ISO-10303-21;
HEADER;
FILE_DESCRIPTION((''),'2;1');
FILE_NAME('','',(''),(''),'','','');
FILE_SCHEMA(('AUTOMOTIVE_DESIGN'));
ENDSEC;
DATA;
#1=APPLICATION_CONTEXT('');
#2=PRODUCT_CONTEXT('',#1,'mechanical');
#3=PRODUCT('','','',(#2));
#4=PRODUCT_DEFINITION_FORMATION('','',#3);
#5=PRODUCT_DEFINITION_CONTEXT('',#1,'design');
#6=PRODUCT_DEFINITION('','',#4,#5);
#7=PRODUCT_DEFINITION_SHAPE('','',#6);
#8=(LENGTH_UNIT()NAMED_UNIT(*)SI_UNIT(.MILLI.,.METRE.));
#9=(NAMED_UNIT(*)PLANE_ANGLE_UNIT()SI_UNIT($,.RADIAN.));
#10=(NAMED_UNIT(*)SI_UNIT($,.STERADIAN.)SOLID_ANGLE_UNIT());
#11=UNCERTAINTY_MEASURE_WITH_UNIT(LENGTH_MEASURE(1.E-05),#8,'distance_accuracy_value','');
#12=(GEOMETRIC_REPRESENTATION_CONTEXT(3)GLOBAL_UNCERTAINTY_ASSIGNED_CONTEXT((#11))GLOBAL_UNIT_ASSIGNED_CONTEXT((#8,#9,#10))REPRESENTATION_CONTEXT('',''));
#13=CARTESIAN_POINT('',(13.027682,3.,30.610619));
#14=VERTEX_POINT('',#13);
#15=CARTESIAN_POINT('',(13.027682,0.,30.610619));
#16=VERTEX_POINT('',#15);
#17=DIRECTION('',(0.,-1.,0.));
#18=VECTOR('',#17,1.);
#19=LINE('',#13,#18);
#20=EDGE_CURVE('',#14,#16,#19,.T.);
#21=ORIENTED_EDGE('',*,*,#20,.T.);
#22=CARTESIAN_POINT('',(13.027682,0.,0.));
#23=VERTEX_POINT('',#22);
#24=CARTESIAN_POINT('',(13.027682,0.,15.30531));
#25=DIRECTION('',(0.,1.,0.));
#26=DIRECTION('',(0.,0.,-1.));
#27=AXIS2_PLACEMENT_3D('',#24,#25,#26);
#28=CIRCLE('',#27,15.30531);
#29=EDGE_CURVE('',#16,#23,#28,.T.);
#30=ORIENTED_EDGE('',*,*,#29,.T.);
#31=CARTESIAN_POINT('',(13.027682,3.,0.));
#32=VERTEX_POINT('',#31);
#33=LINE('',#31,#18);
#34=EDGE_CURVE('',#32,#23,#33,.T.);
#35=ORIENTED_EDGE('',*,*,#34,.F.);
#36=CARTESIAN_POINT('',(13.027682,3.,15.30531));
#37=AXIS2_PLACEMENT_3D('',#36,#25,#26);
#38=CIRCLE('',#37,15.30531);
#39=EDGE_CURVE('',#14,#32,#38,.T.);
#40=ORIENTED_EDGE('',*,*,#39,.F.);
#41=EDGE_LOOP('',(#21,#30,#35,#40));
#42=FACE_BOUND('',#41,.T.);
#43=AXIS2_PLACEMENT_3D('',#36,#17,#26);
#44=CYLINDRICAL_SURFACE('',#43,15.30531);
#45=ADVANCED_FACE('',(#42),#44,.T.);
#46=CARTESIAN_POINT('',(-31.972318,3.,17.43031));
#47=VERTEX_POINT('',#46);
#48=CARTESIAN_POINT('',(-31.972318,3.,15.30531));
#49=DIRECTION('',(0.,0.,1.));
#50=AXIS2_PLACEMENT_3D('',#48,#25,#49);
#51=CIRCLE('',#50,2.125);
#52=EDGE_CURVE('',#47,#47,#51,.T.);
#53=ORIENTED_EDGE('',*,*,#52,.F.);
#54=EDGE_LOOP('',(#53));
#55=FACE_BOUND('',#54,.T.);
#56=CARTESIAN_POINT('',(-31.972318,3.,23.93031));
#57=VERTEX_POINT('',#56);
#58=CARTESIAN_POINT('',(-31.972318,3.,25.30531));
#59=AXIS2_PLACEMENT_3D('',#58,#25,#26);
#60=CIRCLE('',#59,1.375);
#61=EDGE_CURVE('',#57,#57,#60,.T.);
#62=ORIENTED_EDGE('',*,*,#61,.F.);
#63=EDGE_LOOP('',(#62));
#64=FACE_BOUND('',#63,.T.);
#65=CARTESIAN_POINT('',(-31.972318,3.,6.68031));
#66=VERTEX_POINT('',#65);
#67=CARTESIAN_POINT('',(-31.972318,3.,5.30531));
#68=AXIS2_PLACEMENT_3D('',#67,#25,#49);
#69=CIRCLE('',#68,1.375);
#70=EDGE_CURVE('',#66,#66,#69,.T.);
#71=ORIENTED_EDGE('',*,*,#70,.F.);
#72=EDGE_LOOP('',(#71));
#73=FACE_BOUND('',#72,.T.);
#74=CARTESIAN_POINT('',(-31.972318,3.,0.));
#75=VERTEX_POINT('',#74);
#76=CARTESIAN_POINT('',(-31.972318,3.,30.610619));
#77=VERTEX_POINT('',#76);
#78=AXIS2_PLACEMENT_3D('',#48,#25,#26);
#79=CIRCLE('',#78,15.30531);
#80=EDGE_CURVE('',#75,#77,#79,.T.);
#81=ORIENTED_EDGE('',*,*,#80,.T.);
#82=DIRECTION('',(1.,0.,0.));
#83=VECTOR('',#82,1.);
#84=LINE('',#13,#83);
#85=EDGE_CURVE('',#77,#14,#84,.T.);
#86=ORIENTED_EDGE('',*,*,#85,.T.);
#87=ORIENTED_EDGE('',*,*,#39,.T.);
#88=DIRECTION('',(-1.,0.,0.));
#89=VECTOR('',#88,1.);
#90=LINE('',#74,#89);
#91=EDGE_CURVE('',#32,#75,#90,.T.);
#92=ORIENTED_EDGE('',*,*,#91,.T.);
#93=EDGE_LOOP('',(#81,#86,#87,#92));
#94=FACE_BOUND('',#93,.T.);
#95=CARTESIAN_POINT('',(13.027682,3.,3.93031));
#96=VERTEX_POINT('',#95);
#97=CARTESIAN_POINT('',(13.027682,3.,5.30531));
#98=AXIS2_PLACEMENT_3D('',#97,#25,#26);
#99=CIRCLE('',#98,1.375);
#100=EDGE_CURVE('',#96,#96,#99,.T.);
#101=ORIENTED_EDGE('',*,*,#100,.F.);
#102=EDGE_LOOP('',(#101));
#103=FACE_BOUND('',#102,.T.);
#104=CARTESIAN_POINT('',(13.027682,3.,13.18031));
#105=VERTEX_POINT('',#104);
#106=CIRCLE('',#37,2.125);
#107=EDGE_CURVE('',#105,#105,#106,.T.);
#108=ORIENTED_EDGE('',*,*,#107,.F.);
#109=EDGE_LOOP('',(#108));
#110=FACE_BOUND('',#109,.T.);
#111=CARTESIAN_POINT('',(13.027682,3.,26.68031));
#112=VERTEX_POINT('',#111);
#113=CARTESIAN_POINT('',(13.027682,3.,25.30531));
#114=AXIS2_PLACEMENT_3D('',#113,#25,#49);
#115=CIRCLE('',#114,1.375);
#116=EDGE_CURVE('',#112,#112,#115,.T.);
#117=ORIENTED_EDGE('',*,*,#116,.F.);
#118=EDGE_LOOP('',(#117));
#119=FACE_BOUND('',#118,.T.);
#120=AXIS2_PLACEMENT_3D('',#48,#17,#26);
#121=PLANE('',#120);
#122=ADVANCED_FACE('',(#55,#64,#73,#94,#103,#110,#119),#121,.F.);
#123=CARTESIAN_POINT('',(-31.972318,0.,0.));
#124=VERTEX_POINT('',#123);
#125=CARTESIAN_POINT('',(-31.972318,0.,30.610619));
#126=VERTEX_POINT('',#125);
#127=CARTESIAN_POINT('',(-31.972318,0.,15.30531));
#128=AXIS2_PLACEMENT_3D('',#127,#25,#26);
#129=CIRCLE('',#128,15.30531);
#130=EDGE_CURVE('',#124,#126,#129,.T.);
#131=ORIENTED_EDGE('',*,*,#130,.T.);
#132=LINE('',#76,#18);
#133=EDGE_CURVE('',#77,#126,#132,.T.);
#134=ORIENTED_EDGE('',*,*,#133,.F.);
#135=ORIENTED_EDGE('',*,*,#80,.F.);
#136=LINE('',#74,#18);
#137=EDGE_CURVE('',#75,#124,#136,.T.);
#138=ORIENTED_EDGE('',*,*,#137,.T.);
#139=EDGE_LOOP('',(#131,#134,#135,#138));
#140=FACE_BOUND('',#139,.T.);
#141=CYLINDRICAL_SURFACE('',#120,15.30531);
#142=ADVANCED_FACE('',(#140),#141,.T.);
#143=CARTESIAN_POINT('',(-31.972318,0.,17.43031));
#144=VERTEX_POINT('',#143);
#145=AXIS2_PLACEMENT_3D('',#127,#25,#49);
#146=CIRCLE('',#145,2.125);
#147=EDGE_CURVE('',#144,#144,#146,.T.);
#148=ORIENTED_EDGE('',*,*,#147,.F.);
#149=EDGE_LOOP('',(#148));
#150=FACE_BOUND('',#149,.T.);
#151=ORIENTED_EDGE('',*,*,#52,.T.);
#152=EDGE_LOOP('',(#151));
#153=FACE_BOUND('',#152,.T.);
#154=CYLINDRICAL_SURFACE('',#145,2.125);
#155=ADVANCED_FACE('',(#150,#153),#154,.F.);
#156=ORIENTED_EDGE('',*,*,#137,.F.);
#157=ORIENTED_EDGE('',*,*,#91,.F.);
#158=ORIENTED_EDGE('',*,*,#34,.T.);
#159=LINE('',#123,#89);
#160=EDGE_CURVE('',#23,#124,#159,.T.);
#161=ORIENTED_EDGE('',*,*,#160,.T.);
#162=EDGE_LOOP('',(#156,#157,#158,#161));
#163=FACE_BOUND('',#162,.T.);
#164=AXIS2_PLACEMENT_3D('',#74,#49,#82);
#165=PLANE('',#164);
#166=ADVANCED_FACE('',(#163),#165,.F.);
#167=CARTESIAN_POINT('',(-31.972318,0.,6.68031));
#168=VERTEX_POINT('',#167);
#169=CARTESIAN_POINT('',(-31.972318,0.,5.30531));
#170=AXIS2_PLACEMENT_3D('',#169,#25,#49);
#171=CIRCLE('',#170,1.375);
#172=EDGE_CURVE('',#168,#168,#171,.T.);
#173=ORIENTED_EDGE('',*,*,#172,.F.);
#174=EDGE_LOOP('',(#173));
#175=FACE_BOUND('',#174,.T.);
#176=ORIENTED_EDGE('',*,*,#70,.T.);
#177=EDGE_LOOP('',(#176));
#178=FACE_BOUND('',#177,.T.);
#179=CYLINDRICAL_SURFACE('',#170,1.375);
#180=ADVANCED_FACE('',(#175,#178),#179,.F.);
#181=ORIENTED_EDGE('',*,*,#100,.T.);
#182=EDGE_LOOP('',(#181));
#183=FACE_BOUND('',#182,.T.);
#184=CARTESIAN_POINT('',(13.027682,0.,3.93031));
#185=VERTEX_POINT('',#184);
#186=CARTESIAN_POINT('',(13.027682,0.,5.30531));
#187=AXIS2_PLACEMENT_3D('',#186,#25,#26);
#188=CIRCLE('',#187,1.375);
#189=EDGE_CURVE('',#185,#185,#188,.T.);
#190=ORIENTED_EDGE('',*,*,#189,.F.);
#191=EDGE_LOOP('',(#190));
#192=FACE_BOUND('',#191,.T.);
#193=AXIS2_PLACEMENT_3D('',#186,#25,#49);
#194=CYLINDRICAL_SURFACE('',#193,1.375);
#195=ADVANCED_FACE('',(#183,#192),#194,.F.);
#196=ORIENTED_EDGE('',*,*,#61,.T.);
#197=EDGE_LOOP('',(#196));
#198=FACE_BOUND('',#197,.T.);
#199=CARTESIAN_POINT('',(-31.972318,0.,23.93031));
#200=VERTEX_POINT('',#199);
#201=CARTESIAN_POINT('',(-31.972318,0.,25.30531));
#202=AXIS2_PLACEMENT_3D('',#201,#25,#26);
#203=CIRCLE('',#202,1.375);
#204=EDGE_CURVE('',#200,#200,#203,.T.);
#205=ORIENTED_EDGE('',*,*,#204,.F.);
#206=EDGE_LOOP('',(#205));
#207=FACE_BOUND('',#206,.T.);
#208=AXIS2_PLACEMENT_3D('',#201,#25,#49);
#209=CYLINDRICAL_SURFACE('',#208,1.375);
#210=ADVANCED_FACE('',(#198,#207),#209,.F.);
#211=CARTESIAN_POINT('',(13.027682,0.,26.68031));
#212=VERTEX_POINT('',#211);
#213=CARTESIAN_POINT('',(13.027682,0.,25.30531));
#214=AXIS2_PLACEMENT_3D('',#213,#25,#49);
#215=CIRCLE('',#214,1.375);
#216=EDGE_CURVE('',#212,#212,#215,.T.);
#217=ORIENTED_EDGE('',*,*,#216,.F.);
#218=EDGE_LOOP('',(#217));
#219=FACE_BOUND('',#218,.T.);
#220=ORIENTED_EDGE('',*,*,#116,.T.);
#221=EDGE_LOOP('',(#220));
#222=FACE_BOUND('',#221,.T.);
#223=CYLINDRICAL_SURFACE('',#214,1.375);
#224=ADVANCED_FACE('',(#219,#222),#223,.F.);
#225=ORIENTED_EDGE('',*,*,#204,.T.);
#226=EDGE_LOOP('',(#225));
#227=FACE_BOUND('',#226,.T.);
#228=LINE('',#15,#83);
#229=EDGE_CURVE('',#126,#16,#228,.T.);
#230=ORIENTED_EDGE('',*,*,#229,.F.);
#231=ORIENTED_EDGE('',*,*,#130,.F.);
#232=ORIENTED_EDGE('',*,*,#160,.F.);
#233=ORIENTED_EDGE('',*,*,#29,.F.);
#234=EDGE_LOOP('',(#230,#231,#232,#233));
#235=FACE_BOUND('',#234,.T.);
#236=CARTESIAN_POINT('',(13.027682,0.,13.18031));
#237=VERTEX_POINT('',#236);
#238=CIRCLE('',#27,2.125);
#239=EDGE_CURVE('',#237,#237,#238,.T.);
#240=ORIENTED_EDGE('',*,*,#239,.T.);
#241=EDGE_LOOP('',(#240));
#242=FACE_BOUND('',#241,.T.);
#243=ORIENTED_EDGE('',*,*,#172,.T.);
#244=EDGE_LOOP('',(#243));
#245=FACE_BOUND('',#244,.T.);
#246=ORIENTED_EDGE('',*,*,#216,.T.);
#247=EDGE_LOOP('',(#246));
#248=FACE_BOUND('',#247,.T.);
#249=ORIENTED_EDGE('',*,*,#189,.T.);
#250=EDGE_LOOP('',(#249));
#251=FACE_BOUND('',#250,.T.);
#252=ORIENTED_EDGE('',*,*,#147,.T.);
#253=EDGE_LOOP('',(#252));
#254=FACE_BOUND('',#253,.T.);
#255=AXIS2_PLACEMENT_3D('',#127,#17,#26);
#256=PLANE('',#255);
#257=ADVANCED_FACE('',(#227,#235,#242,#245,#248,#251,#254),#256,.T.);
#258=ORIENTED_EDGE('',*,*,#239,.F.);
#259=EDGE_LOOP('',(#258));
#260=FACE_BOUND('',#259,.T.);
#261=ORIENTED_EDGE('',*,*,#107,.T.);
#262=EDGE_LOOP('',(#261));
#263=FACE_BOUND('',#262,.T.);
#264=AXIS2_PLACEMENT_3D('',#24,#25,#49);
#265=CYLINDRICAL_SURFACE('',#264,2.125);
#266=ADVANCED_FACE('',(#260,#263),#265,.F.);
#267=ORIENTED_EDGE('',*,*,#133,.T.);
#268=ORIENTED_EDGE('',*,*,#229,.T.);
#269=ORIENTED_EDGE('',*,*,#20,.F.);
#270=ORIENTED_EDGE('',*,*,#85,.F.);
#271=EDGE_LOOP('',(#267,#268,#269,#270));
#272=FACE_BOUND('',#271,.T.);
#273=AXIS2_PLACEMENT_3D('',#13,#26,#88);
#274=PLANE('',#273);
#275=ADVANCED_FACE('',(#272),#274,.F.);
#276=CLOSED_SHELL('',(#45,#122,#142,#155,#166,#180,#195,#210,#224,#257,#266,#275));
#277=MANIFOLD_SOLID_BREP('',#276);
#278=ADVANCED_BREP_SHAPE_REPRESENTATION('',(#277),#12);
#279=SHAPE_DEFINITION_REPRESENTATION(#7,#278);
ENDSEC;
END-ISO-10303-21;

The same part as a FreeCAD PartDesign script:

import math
import FreeCAD as App
import Part
import Sketcher

V = App.Vector
Q = App.Units.Quantity

doc = App.newDocument("Part")
body = doc.addObject("PartDesign::Body", "Body")

# Sketch on XZ plane
sketch1 = doc.addObject("Sketcher::SketchObject", "Sketch")
body.addObject(sketch1)
sketch1.AttachmentSupport = (doc.XZ_Plane, [""])
sketch1.MapMode = "FlatFace"
sketch1.addGeometry([
    Part.LineSegment(V(13, 0, 0), V(-32, 0, 0)),
    Part.ArcOfCircle(Part.Circle(V(-32, 15, 0), V(0, 0, 1), 15), math.radians(90), math.radians(270)),
    Part.LineSegment(V(-32, 31, 0), V(13, 31, 0)),
    Part.ArcOfCircle(Part.Circle(V(13, 15, 0), V(0, 0, 1), 15), math.radians(-90), math.radians(90)),
], False)
sketch1.addConstraint([
    Sketcher.Constraint("Tangent", 0, 2, 1, 2),
    Sketcher.Constraint("Tangent", 1, 1, 2, 1),
    Sketcher.Constraint("Tangent", 2, 2, 3, 2),
    Sketcher.Constraint("Tangent", 3, 1, 0, 1),
    Sketcher.Constraint("Horizontal", 0),
    Sketcher.Constraint("Horizontal", 2),
    Sketcher.Constraint("PointOnObject", 0, 2, -1),
    Sketcher.Constraint("DistanceX", 0, 2, 0, 1, Q("45 mm")),
    Sketcher.Constraint("Radius", 1, Q("15.30531 mm")),
    Sketcher.Constraint("DistanceX", 1, 3, -1, 1, Q("31.972318 mm")),
])
pad1 = doc.addObject("PartDesign::Pad", "Pad")
body.addObject(pad1)
pad1.Profile = sketch1
pad1.Length = 3
pad1.Reversed = True

# Sketch on XZ plane
sketch2 = doc.addObject("Sketcher::SketchObject", "Sketch001")
body.addObject(sketch2)
sketch2.AttachmentSupport = (doc.XZ_Plane, [""])
sketch2.MapMode = "FlatFace"
sketch2.AttachmentOffset = App.Placement(V(0, 0, -3), App.Rotation())
sketch2.addGeometry([
    Part.Circle(V(-32, 15.3, 0), V(0, 0, 1), 2.1),  # 0
    Part.Circle(V(-32, 5.3, 0), V(0, 0, 1), 1.4),  # 1
    Part.Circle(V(-32, 25.3, 0), V(0, 0, 1), 1.4),  # 2
    Part.Circle(V(13, 5.3, 0), V(0, 0, 1), 1.4),  # 3
    Part.Circle(V(13, 15.3, 0), V(0, 0, 1), 2.1),  # 4
    Part.Circle(V(13, 25.3, 0), V(0, 0, 1), 1.4),  # 5
], False)
sketch2.addConstraint([
    Sketcher.Constraint("Equal", 1, 2),
    Sketcher.Constraint("Equal", 2, 3),
    Sketcher.Constraint("Equal", 0, 4),
    Sketcher.Constraint("Equal", 3, 5),
    Sketcher.Constraint("Horizontal", 1, 3, 3, 3),
    Sketcher.Constraint("Horizontal", 0, 3, 4, 3),
    Sketcher.Constraint("Horizontal", 2, 3, 5, 3),
    Sketcher.Constraint("Vertical", 0, 3, 1, 3),
    Sketcher.Constraint("Vertical", 1, 3, 2, 3),
    Sketcher.Constraint("Vertical", 3, 3, 4, 3),
    Sketcher.Constraint("Vertical", 4, 3, 5, 3),
    Sketcher.Constraint("Diameter", 0, Q("4.25 mm")),
    Sketcher.Constraint("Diameter", 1, Q("2.75 mm")),
    Sketcher.Constraint("DistanceY", 1, 3, 0, 3, Q("10 mm")),
    Sketcher.Constraint("DistanceY", 0, 3, 2, 3, Q("10 mm")),
    Sketcher.Constraint("DistanceX", 1, 3, 3, 3, Q("45 mm")),
    Sketcher.Constraint("DistanceX", 0, 3, -1, 1, Q("31.972318 mm")),
    Sketcher.Constraint("DistanceY", -1, 1, 0, 3, Q("15.30531 mm")),
])
pocket1 = doc.addObject("PartDesign::Pocket", "Pocket")
body.addObject(pocket1)
pocket1.Profile = sketch2
pocket1.Type = "ThroughAll"
pocket1.Reversed = True

doc.recompute()
